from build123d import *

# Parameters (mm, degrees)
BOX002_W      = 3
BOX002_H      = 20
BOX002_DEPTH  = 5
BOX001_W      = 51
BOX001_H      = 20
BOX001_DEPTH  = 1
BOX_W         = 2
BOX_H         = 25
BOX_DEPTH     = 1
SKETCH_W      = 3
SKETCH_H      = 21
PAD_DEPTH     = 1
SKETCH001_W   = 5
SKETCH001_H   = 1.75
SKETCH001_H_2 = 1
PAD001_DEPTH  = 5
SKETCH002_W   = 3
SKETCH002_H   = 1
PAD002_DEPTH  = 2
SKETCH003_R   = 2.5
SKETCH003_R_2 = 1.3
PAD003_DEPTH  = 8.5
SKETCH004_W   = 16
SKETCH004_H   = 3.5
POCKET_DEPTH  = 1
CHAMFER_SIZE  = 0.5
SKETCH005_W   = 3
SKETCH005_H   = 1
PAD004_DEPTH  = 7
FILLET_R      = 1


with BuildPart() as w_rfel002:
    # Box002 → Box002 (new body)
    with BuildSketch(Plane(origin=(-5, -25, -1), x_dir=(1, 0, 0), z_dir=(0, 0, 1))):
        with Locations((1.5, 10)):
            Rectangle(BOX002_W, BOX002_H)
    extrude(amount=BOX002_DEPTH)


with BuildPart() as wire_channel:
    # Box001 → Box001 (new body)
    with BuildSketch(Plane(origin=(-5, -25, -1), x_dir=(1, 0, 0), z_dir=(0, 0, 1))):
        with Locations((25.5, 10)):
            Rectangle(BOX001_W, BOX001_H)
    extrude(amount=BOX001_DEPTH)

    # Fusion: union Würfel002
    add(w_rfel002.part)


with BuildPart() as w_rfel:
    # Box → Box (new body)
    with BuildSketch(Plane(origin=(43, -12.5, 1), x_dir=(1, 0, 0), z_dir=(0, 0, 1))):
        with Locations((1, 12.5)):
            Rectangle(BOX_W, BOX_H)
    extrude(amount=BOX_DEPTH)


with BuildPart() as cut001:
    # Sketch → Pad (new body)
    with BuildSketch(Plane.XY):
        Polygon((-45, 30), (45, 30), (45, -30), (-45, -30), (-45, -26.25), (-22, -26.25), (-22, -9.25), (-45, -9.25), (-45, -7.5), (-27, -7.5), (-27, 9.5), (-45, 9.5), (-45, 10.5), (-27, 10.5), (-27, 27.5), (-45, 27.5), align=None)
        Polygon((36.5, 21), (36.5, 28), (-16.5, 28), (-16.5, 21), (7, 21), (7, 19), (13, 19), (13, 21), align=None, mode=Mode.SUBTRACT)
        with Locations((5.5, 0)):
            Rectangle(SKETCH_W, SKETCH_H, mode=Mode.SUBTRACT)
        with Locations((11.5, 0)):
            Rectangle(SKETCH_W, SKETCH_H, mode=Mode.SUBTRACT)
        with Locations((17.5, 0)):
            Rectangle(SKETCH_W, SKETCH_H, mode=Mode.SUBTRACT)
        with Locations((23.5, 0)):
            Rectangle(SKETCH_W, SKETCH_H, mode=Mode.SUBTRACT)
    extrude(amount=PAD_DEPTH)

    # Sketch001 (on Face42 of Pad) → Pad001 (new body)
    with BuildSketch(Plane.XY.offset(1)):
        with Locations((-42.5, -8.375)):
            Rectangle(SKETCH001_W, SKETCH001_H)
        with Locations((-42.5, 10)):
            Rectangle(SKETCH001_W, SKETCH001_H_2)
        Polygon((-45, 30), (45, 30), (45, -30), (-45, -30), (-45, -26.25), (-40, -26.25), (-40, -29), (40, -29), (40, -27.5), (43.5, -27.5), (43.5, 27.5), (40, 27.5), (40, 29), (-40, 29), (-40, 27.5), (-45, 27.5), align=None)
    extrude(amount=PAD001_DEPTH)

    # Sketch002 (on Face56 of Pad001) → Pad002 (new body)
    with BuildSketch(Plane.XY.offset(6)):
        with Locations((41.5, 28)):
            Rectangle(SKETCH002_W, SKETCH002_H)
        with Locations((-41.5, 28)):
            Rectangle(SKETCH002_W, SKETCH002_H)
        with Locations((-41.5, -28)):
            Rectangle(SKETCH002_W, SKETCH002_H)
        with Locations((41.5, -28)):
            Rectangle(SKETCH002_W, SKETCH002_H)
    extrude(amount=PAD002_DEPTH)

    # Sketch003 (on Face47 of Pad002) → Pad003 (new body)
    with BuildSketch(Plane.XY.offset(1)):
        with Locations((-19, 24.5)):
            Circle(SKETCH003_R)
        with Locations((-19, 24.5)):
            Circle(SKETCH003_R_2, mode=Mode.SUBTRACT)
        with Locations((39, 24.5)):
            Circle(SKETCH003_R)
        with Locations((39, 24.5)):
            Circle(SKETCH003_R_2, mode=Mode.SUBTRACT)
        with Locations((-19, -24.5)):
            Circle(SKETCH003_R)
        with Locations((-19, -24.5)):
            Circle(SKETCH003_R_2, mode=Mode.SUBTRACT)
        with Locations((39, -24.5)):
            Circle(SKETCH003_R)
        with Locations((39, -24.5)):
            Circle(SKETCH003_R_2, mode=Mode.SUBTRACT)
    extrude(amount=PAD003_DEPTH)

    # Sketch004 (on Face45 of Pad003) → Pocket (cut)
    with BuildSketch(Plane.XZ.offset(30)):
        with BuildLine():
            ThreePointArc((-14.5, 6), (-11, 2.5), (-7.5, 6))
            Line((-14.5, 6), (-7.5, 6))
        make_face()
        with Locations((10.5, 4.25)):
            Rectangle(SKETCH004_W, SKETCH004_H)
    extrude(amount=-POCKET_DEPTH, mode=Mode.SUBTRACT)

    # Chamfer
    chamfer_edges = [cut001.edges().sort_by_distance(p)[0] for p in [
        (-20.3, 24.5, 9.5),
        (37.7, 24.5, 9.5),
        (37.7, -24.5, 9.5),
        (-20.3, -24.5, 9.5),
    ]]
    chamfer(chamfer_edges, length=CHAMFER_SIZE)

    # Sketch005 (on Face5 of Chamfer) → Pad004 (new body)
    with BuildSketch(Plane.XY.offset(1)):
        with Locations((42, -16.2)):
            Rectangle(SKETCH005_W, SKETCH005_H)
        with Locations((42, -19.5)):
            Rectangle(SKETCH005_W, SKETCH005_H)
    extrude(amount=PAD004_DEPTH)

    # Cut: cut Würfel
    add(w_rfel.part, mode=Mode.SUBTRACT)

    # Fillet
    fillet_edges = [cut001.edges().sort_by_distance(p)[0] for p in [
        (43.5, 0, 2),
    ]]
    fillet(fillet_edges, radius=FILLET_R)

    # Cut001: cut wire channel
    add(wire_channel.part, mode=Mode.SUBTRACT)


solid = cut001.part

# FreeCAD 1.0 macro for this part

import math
import FreeCAD as App
import Part
import Sketcher
from FreeCAD import Vector
Q = App.Units.Quantity


def edges_at(feature, points):
    """Names of the edges that pass closest to the given points."""
    edges = feature.Shape.Edges
    near = lambda p: min(range(len(edges)), key=lambda i: edges[i].distToShape(Part.Vertex(*p))[0])
    return sorted({f"Edge{near(p) + 1}" for p in points})


def add_polygon(sketch, points):
    """Adds a closed chain of lines whose ends are joined by coincident constraints."""
    first, n = sketch.GeometryCount, len(points)
    for a, b in zip(points, points[1:] + points[:1]):
        sketch.addGeometry(Part.LineSegment(App.Vector(*a, 0), App.Vector(*b, 0)), False)
    for i in range(n):
        sketch.addConstraint(Sketcher.Constraint("Coincident", first + i, 2, first + (i + 1) % n, 1))

doc = App.newDocument("Part")
body = doc.addObject("PartDesign::Body", "Body")

sketch1 = body.newObject("Sketcher::SketchObject", "Sketch")
sketch1.AttachmentSupport = (doc.getObject("XY_Plane"), [""])
sketch1.MapMode = "FlatFace"
sketch1.AttachmentOffset = App.Placement(Vector(0, 0, -1), App.Rotation())
add_polygon(sketch1, [(-5, -5), (-5, -25), (-2, -25), (-2, -5)])
sketch1.addConstraint([
    Sketcher.Constraint("Vertical", 0),
    Sketcher.Constraint("Horizontal", 1),
    Sketcher.Constraint("Vertical", 2),
    Sketcher.Constraint("Horizontal", 3),
    Sketcher.Constraint("DistanceX", 1, 1, 1, 2, Q("3 mm")),
    Sketcher.Constraint("DistanceY", 0, 2, 0, 1, Q("20 mm")),
    Sketcher.Constraint("DistanceX", 0, 2, -1, 1, Q("5 mm")),
    Sketcher.Constraint("DistanceY", 0, 2, -1, 1, Q("25 mm")),
])
pad1 = body.newObject("PartDesign::Pad", "Pad")
pad1.Profile = sketch1
pad1.Length = 5
body2 = doc.addObject("PartDesign::Body", "Body001")

sketch2 = body2.newObject("Sketcher::SketchObject", "Sketch001")
sketch2.AttachmentSupport = (doc.getObject("XY_Plane001"), [""])
sketch2.MapMode = "FlatFace"
sketch2.AttachmentOffset = App.Placement(Vector(0, 0, -1), App.Rotation())
add_polygon(sketch2, [(-5, -5), (-5, -25), (46, -25), (46, -5)])
sketch2.addConstraint([
    Sketcher.Constraint("Vertical", 0),
    Sketcher.Constraint("Horizontal", 1),
    Sketcher.Constraint("Vertical", 2),
    Sketcher.Constraint("Horizontal", 3),
    Sketcher.Constraint("DistanceX", 1, 1, 1, 2, Q("51 mm")),
    Sketcher.Constraint("DistanceY", 0, 2, 0, 1, Q("20 mm")),
    Sketcher.Constraint("DistanceX", 0, 2, -1, 1, Q("5 mm")),
    Sketcher.Constraint("DistanceY", 0, 2, -1, 1, Q("25 mm")),
])
pad2 = body2.newObject("PartDesign::Pad", "Pad001")
pad2.Profile = sketch2
pad2.Length = 1
doc.recompute()

boolean = body2.newObject("PartDesign::Boolean", "Boolean")
boolean.Type = "Fuse"
boolean.addObjects([body])
body3 = doc.addObject("PartDesign::Body", "Body002")

sketch3 = body3.newObject("Sketcher::SketchObject", "Sketch002")
sketch3.AttachmentSupport = (doc.getObject("XY_Plane002"), [""])
sketch3.MapMode = "FlatFace"
sketch3.AttachmentOffset = App.Placement(Vector(0, 0, 1), App.Rotation())
add_polygon(sketch3, [(43, 12.5), (43, -12.5), (45, -12.5), (45, 12.5)])
sketch3.addConstraint([
    Sketcher.Constraint("Vertical", 0),
    Sketcher.Constraint("Horizontal", 1),
    Sketcher.Constraint("Vertical", 2),
    Sketcher.Constraint("Horizontal", 3),
    Sketcher.Constraint("DistanceX", 1, 1, 1, 2, Q("2 mm")),
    Sketcher.Constraint("DistanceY", 0, 2, 0, 1, Q("25 mm")),
    Sketcher.Constraint("DistanceX", -1, 1, 0, 2, Q("43 mm")),
    Sketcher.Constraint("DistanceY", 0, 2, -1, 1, Q("12.5 mm")),
])
pad3 = body3.newObject("PartDesign::Pad", "Pad002")
pad3.Profile = sketch3
pad3.Length = 1
body4 = doc.addObject("PartDesign::Body", "Body003")

sketch4 = body4.newObject("Sketcher::SketchObject", "Sketch003")
sketch4.AttachmentSupport = (doc.getObject("XY_Plane003"), [""])
sketch4.MapMode = "FlatFace"
add_polygon(sketch4, [(45, 30), (-45, 30), (-45, 27.5), (-27, 27.5), (-27, 10.5), (-45, 10.5), (-45, 9.5), (-27, 9.5), (-27, -7.5), (-45, -7.5), (-45, -9.2), (-22, -9.2), (-22, -26.2), (-45, -26.2), (-45, -30), (45, -30)])
add_polygon(sketch4, [(22, -10.5), (22, 10.5), (25, 10.5), (25, -10.5)])
add_polygon(sketch4, [(16, -10.5), (16, 10.5), (19, 10.5), (19, -10.5)])
add_polygon(sketch4, [(10, -10.5), (10, 10.5), (13, 10.5), (13, -10.5)])
add_polygon(sketch4, [(4, -10.5), (4, 10.5), (7, 10.5), (7, -10.5)])
add_polygon(sketch4, [(36.5, 21), (13, 21), (13, 19), (7, 19), (7, 21), (-16.5, 21), (-16.5, 28), (36.5, 28)])
sketch4.addConstraint([
    Sketcher.Constraint("Horizontal", 0),
    Sketcher.Constraint("Vertical", 1),
    Sketcher.Constraint("Horizontal", 2),
    Sketcher.Constraint("Vertical", 3),
    Sketcher.Constraint("Horizontal", 4),
    Sketcher.Constraint("Vertical", 5),
    Sketcher.Constraint("Horizontal", 6),
    Sketcher.Constraint("Vertical", 7),
    Sketcher.Constraint("Horizontal", 8),
    Sketcher.Constraint("Vertical", 9),
    Sketcher.Constraint("Horizontal", 10),
    Sketcher.Constraint("Vertical", 11),
    Sketcher.Constraint("Horizontal", 12),
    Sketcher.Constraint("Vertical", 13),
    Sketcher.Constraint("Horizontal", 14),
    Sketcher.Constraint("Vertical", 15),
    Sketcher.Constraint("Vertical", 16),
    Sketcher.Constraint("Horizontal", 17),
    Sketcher.Constraint("Vertical", 18),
    Sketcher.Constraint("Horizontal", 19),
    Sketcher.Constraint("Vertical", 20),
    Sketcher.Constraint("Horizontal", 21),
    Sketcher.Constraint("Vertical", 22),
    Sketcher.Constraint("Horizontal", 23),
    Sketcher.Constraint("Vertical", 24),
    Sketcher.Constraint("Horizontal", 25),
    Sketcher.Constraint("Vertical", 26),
    Sketcher.Constraint("Horizontal", 27),
    Sketcher.Constraint("Vertical", 28),
    Sketcher.Constraint("Horizontal", 29),
    Sketcher.Constraint("Vertical", 30),
    Sketcher.Constraint("Horizontal", 31),
    Sketcher.Constraint("Horizontal", 32),
    Sketcher.Constraint("Vertical", 33),
    Sketcher.Constraint("Horizontal", 34),
    Sketcher.Constraint("Vertical", 35),
    Sketcher.Constraint("Horizontal", 36),
    Sketcher.Constraint("Vertical", 37),
    Sketcher.Constraint("Horizontal", 38),
    Sketcher.Constraint("Vertical", 39),
    Sketcher.Constraint("Symmetric", 0, 2, 14, 2, -1, 1),
    Sketcher.Constraint("Horizontal", 4, 2, 16, 2),
    Sketcher.Constraint("Horizontal", 17, 2, 20, 2),
    Sketcher.Constraint("Horizontal", 19, 2, 22, 2),
    Sketcher.Constraint("Horizontal", 21, 2, 24, 2),
    Sketcher.Constraint("Horizontal", 23, 2, 26, 2),
    Sketcher.Constraint("Horizontal", 25, 2, 28, 2),
    Sketcher.Constraint("Horizontal", 27, 2, 30, 2),
    Sketcher.Constraint("Horizontal", 32, 2, 35, 2),
    Sketcher.Constraint("Vertical", 1, 2, 4, 2),
    Sketcher.Constraint("Vertical", 3, 2, 6, 2),
    Sketcher.Constraint("Vertical", 5, 2, 8, 2),
    Sketcher.Constraint("Vertical", 9, 2, 12, 2),
    Sketcher.Constraint("Vertical", 26, 2, 32, 2),
    Sketcher.Constraint("Vertical", 30, 2, 34, 2),
    Sketcher.Constraint("Equal", 19, 21),
    Sketcher.Constraint("Equal", 23, 25),
    Sketcher.Constraint("Equal", 27, 29),
    Sketcher.Constraint("Equal", 32, 36),
    Sketcher.Constraint("Equal", 3, 7),
    Sketcher.Constraint("Equal", 7, 11),
    Sketcher.Constraint("DistanceX", 0, 2, 0, 1, Q("90 mm")),
    Sketcher.Constraint("DistanceX", 2, 1, 2, 2, Q("18 mm")),
    Sketcher.Constraint("DistanceX", 10, 1, 10, 2, Q("23 mm")),
    Sketcher.Constraint("DistanceX", 17, 1, 17, 2, Q("3 mm")),
    Sketcher.Constraint("DistanceX", 34, 2, 34, 1, Q("6 mm")),
    Sketcher.Constraint("DistanceX", 38, 1, 38, 2, Q("53 mm")),
    Sketcher.Constraint("DistanceY", 3, 2, 3, 1, Q("17 mm")),
    Sketcher.Constraint("DistanceY", 5, 2, 5, 1, Q("1 mm")),
    Sketcher.Constraint("DistanceY", 15, 1, 15, 2, Q("60 mm")),
    Sketcher.Constraint("DistanceY", 16, 1, 16, 2, Q("21 mm")),
    Sketcher.Constraint("DistanceY", 33, 2, 33, 1, Q("2 mm")),
    Sketcher.Constraint("DistanceY", 37, 1, 37, 2, Q("7 mm")),
    Sketcher.Constraint("DistanceY", 1, 2, 1, 1, Q("2.5 mm")),
    Sketcher.Constraint("DistanceX", -1, 1, 16, 2, Q("22 mm")),
    Sketcher.Constraint("DistanceX", -1, 1, 20, 2, Q("16 mm")),
    Sketcher.Constraint("DistanceX", -1, 1, 24, 2, Q("10 mm")),
    Sketcher.Constraint("DistanceY", -1, 1, 32, 2, Q("21 mm")),
    Sketcher.Constraint("DistanceY", 9, 2, 9, 1, Q("1.75 mm")),
])
pad4 = body4.newObject("PartDesign::Pad", "Pad003")
pad4.Profile = sketch4
pad4.Length = 1

sketch5 = body4.newObject("Sketcher::SketchObject", "Sketch004")
sketch5.AttachmentSupport = (doc.getObject("XY_Plane003"), [""])
sketch5.MapMode = "FlatFace"
sketch5.AttachmentOffset = App.Placement(Vector(0, 0, 1), App.Rotation())
add_polygon(sketch5, [(-45, -7.5), (-45, -9.2), (-40, -9.2), (-40, -7.5)])
add_polygon(sketch5, [(-45, 10.5), (-45, 9.5), (-40, 9.5), (-40, 10.5)])
add_polygon(sketch5, [(45, 30), (-45, 30), (-45, 27.5), (-40, 27.5), (-40, 29), (40, 29), (40, 27.5), (43.5, 27.5), (43.5, -27.5), (40, -27.5), (40, -29), (-40, -29), (-40, -26.2), (-45, -26.2), (-45, -30), (45, -30)])
sketch5.addConstraint([
    Sketcher.Constraint("Vertical", 0),
    Sketcher.Constraint("Horizontal", 1),
    Sketcher.Constraint("Vertical", 2),
    Sketcher.Constraint("Horizontal", 3),
    Sketcher.Constraint("Vertical", 4),
    Sketcher.Constraint("Horizontal", 5),
    Sketcher.Constraint("Vertical", 6),
    Sketcher.Constraint("Horizontal", 7),
    Sketcher.Constraint("Horizontal", 8),
    Sketcher.Constraint("Vertical", 9),
    Sketcher.Constraint("Horizontal", 10),
    Sketcher.Constraint("Vertical", 11),
    Sketcher.Constraint("Horizontal", 12),
    Sketcher.Constraint("Vertical", 13),
    Sketcher.Constraint("Horizontal", 14),
    Sketcher.Constraint("Vertical", 15),
    Sketcher.Constraint("Horizontal", 16),
    Sketcher.Constraint("Vertical", 17),
    Sketcher.Constraint("Horizontal", 18),
    Sketcher.Constraint("Vertical", 19),
    Sketcher.Constraint("Horizontal", 20),
    Sketcher.Constraint("Vertical", 21),
    Sketcher.Constraint("Horizontal", 22),
    Sketcher.Constraint("Vertical", 23),
    Sketcher.Constraint("Symmetric", 10, 2, 16, 2, -1, 1),
    Sketcher.Constraint("Symmetric", 12, 2, 18, 2, -1, 1),
    Sketcher.Constraint("Symmetric", 8, 2, 22, 2, -1, 1),
    Sketcher.Constraint("Symmetric", 10, 2, 13, 2, -2),
    Sketcher.Constraint("Vertical", 3, 2, 4, 2),
    Sketcher.Constraint("Vertical", 2, 2, 5, 2),
    Sketcher.Constraint("Vertical", 7, 2, 8, 2),
    Sketcher.Constraint("Vertical", 6, 2, 10, 2),
    Sketcher.Constraint("Vertical", 9, 2, 20, 2),
    Sketcher.Constraint("DistanceX", 1, 1, 1, 2, Q("5 mm")),
    Sketcher.Constraint("DistanceX", 8, 2, 8, 1, Q("90 mm")),
    Sketcher.Constraint("DistanceY", 4, 2, 4, 1, Q("1 mm")),
    Sketcher.Constraint("DistanceY", 15, 2, 15, 1, Q("55 mm")),
    Sketcher.Constraint("DistanceY", 23, 1, 23, 2, Q("60 mm")),
    Sketcher.Constraint("DistanceX", 14, 1, 14, 2, Q("3.5 mm")),
    Sketcher.Constraint("DistanceY", 11, 1, 11, 2, Q("1.5 mm")),
    Sketcher.Constraint("DistanceY", 3, 2, 4, 2, Q("17 mm")),
    Sketcher.Constraint("DistanceY", 7, 2, 9, 2, Q("17 mm")),
    Sketcher.Constraint("DistanceY", 19, 2, 1, 2, Q("17 mm")),
    Sketcher.Constraint("DistanceY", 0, 2, 0, 1, Q("1.75 mm")),
])
pad5 = body4.newObject("PartDesign::Pad", "Pad004")
pad5.Profile = sketch5
pad5.Length = 5

sketch6 = body4.newObject("Sketcher::SketchObject", "Sketch005")
sketch6.AttachmentSupport = (doc.getObject("XY_Plane003"), [""])
sketch6.MapMode = "FlatFace"
sketch6.AttachmentOffset = App.Placement(Vector(0, 0, 6), App.Rotation())
add_polygon(sketch6, [(40, 28.5), (40, 27.5), (43, 27.5), (43, 28.5)])
add_polygon(sketch6, [(-43, 28.5), (-43, 27.5), (-40, 27.5), (-40, 28.5)])
add_polygon(sketch6, [(-43, -27.5), (-43, -28.5), (-40, -28.5), (-40, -27.5)])
add_polygon(sketch6, [(40, -27.5), (40, -28.5), (43, -28.5), (43, -27.5)])
sketch6.addConstraint([
    Sketcher.Constraint("Vertical", 0),
    Sketcher.Constraint("Horizontal", 1),
    Sketcher.Constraint("Vertical", 2),
    Sketcher.Constraint("Horizontal", 3),
    Sketcher.Constraint("Vertical", 4),
    Sketcher.Constraint("Horizontal", 5),
    Sketcher.Constraint("Vertical", 6),
    Sketcher.Constraint("Horizontal", 7),
    Sketcher.Constraint("Vertical", 8),
    Sketcher.Constraint("Horizontal", 9),
    Sketcher.Constraint("Vertical", 10),
    Sketcher.Constraint("Horizontal", 11),
    Sketcher.Constraint("Vertical", 12),
    Sketcher.Constraint("Horizontal", 13),
    Sketcher.Constraint("Vertical", 14),
    Sketcher.Constraint("Horizontal", 15),
    Sketcher.Constraint("Symmetric", 2, 2, 8, 2, -1, 1),
    Sketcher.Constraint("Symmetric", 0, 2, 10, 2, -1, 1),
    Sketcher.Constraint("Symmetric", 6, 2, 12, 2, -1, 1),
    Sketcher.Constraint("Symmetric", 4, 2, 14, 2, -1, 1),
    Sketcher.Constraint("Symmetric", 1, 2, 4, 2, -2),
    Sketcher.Constraint("Symmetric", 3, 2, 6, 2, -2),
    Sketcher.Constraint("DistanceX", 1, 1, 1, 2, Q("3 mm")),
    Sketcher.Constraint("DistanceY", 0, 2, 0, 1, Q("1 mm")),
    Sketcher.Constraint("DistanceX", -1, 1, 0, 2, Q("40 mm")),
    Sketcher.Constraint("DistanceY", 8, 2, 4, 2, Q("56 mm")),
])
pad6 = body4.newObject("PartDesign::Pad", "Pad005")
pad6.Profile = sketch6
pad6.Length = 2

sketch7 = body4.newObject("Sketcher::SketchObject", "Sketch006")
sketch7.AttachmentSupport = (doc.getObject("XY_Plane003"), [""])
sketch7.MapMode = "FlatFace"
sketch7.AttachmentOffset = App.Placement(Vector(0, 0, 1), App.Rotation())
sketch7.addGeometry([
    Part.Circle(Vector(-19, 24.5, 0), Vector(0, 0, 1), 2.5),
    Part.Circle(Vector(-19, 24.5, 0), Vector(0, 0, 1), 1.3),
    Part.Circle(Vector(39, 24.5, 0), Vector(0, 0, 1), 2.5),
    Part.Circle(Vector(39, 24.5, 0), Vector(0, 0, 1), 1.3),
    Part.Circle(Vector(-19, -24.5, 0), Vector(0, 0, 1), 2.5),
    Part.Circle(Vector(-19, -24.5, 0), Vector(0, 0, 1), 1.3),
    Part.Circle(Vector(39, -24.5, 0), Vector(0, 0, 1), 2.5),
    Part.Circle(Vector(39, -24.5, 0), Vector(0, 0, 1), 1.3),
], False)
sketch7.addConstraint([
    Sketcher.Constraint("Coincident", 1, 3, 0, 3),
    Sketcher.Constraint("Coincident", 3, 3, 2, 3),
    Sketcher.Constraint("Coincident", 5, 3, 4, 3),
    Sketcher.Constraint("Coincident", 7, 3, 6, 3),
    Sketcher.Constraint("Equal", 0, 2),
    Sketcher.Constraint("Equal", 1, 3),
    Sketcher.Constraint("Equal", 2, 4),
    Sketcher.Constraint("Equal", 3, 5),
    Sketcher.Constraint("Equal", 4, 6),
    Sketcher.Constraint("Equal", 5, 7),
    Sketcher.Constraint("Symmetric", 0, 3, 4, 3, -1),
    Sketcher.Constraint("Symmetric", 2, 3, 6, 3, -1),
    Sketcher.Constraint("Horizontal", 1, 3, 2, 3),
    Sketcher.Constraint("Diameter", 0, Q("5 mm")),
    Sketcher.Constraint("Diameter", 1, Q("2.6 mm")),
    Sketcher.Constraint("DistanceX", 0, 3, -1, 1, Q("19 mm")),
    Sketcher.Constraint("DistanceX", -1, 1, 2, 3, Q("39 mm")),
    Sketcher.Constraint("DistanceY", 4, 3, 0, 3, Q("49 mm")),
])
pad7 = body4.newObject("PartDesign::Pad", "Pad006")
pad7.Profile = sketch7
pad7.Length = 8.5

sketch8 = body4.newObject("Sketcher::SketchObject", "Sketch007")
sketch8.AttachmentSupport = (doc.getObject("XZ_Plane003"), [""])
sketch8.MapMode = "FlatFace"
sketch8.AttachmentOffset = App.Placement(Vector(0, 0, 30), App.Rotation())
sketch8.addGeometry(Part.ArcOfCircle(Part.Circle(Vector(-11, 6, 0), Vector(0, 0, 1), 3.5), math.radians(180), math.radians(360)), False)
sketch8.addGeometry(Part.LineSegment(Vector(-7.5, 6, 0), Vector(-14.5, 6, 0)), False)
add_polygon(sketch8, [(2.5, 6), (2.5, 2.5), (18.5, 2.5), (18.5, 6)])
sketch8.addConstraint([
    Sketcher.Constraint("Coincident", 0, 1, 1, 2),
    Sketcher.Constraint("Coincident", 1, 1, 0, 2),
    Sketcher.Constraint("Horizontal", 1),
    Sketcher.Constraint("Vertical", 2),
    Sketcher.Constraint("Horizontal", 3),
    Sketcher.Constraint("Vertical", 4),
    Sketcher.Constraint("Horizontal", 5),
    Sketcher.Constraint("Horizontal", 1, 1, 4, 2),
    Sketcher.Constraint("Radius", 0, Q("3.5 mm")),
    Sketcher.Constraint("DistanceX", 3, 1, 3, 2, Q("16 mm")),
    Sketcher.Constraint("DistanceY", 2, 2, 2, 1, Q("3.5 mm")),
    Sketcher.Constraint("DistanceX", 0, 3, -1, 1, Q("11 mm")),
    Sketcher.Constraint("DistanceY", -1, 1, 0, 3, Q("6 mm")),
    Sketcher.Constraint("DistanceY", -1, 1, 0, 1, Q("6 mm")),
    Sketcher.Constraint("DistanceX", 1, 1, 2, 2, Q("10 mm")),
])
pocket1 = body4.newObject("PartDesign::Pocket", "Pocket")
pocket1.Profile = sketch8
pocket1.Length = 1
doc.recompute()

chamfer = body4.newObject("PartDesign::Chamfer", "Chamfer")
chamfer.Base = (pocket1, edges_at(pocket1, [
    (-20.3, 24.5, 9.5),
    (37.7, 24.5, 9.5),
    (37.7, -24.5, 9.5),
    (-20.3, -24.5, 9.5),
]))
chamfer.Size = 0.5

sketch9 = body4.newObject("Sketcher::SketchObject", "Sketch008")
sketch9.AttachmentSupport = (doc.getObject("XY_Plane003"), [""])
sketch9.MapMode = "FlatFace"
sketch9.AttachmentOffset = App.Placement(Vector(0, 0, 1), App.Rotation())
add_polygon(sketch9, [(40.5, -15.7), (40.5, -16.7), (43.5, -16.7), (43.5, -15.7)])
add_polygon(sketch9, [(40.5, -19), (40.5, -20), (43.5, -20), (43.5, -19)])
sketch9.addConstraint([
    Sketcher.Constraint("Vertical", 0),
    Sketcher.Constraint("Horizontal", 1),
    Sketcher.Constraint("Vertical", 2),
    Sketcher.Constraint("Horizontal", 3),
    Sketcher.Constraint("Vertical", 4),
    Sketcher.Constraint("Horizontal", 5),
    Sketcher.Constraint("Vertical", 6),
    Sketcher.Constraint("Horizontal", 7),
    Sketcher.Constraint("Vertical", 3, 2, 4, 2),
    Sketcher.Constraint("Vertical", 2, 2, 5, 2),
    Sketcher.Constraint("Equal", 2, 4),
    Sketcher.Constraint("DistanceX", 1, 1, 1, 2, Q("3 mm")),
    Sketcher.Constraint("DistanceY", 0, 2, 0, 1, Q("1 mm")),
    Sketcher.Constraint("DistanceY", 4, 2, -1, 1, Q("20 mm")),
    Sketcher.Constraint("DistanceX", -1, 1, 0, 2, Q("40.5 mm")),
    Sketcher.Constraint("DistanceY", 0, 2, -1, 1, Q("16.7 mm")),
])
pad8 = body4.newObject("PartDesign::Pad", "Pad007")
pad8.Profile = sketch9
pad8.Length = 7
doc.recompute()

boolean2 = body4.newObject("PartDesign::Boolean", "Boolean001")
boolean2.Type = "Cut"
boolean2.addObjects([body3])
doc.recompute()

fillet = body4.newObject("PartDesign::Fillet", "Fillet")
fillet.Base = (boolean2, edges_at(boolean2, [(43.5, 0, 2)]))
fillet.Radius = 1
doc.recompute()

boolean3 = body4.newObject("PartDesign::Boolean", "Boolean002")
boolean3.Type = "Cut"
boolean3.addObjects([body2])

doc.recompute()
